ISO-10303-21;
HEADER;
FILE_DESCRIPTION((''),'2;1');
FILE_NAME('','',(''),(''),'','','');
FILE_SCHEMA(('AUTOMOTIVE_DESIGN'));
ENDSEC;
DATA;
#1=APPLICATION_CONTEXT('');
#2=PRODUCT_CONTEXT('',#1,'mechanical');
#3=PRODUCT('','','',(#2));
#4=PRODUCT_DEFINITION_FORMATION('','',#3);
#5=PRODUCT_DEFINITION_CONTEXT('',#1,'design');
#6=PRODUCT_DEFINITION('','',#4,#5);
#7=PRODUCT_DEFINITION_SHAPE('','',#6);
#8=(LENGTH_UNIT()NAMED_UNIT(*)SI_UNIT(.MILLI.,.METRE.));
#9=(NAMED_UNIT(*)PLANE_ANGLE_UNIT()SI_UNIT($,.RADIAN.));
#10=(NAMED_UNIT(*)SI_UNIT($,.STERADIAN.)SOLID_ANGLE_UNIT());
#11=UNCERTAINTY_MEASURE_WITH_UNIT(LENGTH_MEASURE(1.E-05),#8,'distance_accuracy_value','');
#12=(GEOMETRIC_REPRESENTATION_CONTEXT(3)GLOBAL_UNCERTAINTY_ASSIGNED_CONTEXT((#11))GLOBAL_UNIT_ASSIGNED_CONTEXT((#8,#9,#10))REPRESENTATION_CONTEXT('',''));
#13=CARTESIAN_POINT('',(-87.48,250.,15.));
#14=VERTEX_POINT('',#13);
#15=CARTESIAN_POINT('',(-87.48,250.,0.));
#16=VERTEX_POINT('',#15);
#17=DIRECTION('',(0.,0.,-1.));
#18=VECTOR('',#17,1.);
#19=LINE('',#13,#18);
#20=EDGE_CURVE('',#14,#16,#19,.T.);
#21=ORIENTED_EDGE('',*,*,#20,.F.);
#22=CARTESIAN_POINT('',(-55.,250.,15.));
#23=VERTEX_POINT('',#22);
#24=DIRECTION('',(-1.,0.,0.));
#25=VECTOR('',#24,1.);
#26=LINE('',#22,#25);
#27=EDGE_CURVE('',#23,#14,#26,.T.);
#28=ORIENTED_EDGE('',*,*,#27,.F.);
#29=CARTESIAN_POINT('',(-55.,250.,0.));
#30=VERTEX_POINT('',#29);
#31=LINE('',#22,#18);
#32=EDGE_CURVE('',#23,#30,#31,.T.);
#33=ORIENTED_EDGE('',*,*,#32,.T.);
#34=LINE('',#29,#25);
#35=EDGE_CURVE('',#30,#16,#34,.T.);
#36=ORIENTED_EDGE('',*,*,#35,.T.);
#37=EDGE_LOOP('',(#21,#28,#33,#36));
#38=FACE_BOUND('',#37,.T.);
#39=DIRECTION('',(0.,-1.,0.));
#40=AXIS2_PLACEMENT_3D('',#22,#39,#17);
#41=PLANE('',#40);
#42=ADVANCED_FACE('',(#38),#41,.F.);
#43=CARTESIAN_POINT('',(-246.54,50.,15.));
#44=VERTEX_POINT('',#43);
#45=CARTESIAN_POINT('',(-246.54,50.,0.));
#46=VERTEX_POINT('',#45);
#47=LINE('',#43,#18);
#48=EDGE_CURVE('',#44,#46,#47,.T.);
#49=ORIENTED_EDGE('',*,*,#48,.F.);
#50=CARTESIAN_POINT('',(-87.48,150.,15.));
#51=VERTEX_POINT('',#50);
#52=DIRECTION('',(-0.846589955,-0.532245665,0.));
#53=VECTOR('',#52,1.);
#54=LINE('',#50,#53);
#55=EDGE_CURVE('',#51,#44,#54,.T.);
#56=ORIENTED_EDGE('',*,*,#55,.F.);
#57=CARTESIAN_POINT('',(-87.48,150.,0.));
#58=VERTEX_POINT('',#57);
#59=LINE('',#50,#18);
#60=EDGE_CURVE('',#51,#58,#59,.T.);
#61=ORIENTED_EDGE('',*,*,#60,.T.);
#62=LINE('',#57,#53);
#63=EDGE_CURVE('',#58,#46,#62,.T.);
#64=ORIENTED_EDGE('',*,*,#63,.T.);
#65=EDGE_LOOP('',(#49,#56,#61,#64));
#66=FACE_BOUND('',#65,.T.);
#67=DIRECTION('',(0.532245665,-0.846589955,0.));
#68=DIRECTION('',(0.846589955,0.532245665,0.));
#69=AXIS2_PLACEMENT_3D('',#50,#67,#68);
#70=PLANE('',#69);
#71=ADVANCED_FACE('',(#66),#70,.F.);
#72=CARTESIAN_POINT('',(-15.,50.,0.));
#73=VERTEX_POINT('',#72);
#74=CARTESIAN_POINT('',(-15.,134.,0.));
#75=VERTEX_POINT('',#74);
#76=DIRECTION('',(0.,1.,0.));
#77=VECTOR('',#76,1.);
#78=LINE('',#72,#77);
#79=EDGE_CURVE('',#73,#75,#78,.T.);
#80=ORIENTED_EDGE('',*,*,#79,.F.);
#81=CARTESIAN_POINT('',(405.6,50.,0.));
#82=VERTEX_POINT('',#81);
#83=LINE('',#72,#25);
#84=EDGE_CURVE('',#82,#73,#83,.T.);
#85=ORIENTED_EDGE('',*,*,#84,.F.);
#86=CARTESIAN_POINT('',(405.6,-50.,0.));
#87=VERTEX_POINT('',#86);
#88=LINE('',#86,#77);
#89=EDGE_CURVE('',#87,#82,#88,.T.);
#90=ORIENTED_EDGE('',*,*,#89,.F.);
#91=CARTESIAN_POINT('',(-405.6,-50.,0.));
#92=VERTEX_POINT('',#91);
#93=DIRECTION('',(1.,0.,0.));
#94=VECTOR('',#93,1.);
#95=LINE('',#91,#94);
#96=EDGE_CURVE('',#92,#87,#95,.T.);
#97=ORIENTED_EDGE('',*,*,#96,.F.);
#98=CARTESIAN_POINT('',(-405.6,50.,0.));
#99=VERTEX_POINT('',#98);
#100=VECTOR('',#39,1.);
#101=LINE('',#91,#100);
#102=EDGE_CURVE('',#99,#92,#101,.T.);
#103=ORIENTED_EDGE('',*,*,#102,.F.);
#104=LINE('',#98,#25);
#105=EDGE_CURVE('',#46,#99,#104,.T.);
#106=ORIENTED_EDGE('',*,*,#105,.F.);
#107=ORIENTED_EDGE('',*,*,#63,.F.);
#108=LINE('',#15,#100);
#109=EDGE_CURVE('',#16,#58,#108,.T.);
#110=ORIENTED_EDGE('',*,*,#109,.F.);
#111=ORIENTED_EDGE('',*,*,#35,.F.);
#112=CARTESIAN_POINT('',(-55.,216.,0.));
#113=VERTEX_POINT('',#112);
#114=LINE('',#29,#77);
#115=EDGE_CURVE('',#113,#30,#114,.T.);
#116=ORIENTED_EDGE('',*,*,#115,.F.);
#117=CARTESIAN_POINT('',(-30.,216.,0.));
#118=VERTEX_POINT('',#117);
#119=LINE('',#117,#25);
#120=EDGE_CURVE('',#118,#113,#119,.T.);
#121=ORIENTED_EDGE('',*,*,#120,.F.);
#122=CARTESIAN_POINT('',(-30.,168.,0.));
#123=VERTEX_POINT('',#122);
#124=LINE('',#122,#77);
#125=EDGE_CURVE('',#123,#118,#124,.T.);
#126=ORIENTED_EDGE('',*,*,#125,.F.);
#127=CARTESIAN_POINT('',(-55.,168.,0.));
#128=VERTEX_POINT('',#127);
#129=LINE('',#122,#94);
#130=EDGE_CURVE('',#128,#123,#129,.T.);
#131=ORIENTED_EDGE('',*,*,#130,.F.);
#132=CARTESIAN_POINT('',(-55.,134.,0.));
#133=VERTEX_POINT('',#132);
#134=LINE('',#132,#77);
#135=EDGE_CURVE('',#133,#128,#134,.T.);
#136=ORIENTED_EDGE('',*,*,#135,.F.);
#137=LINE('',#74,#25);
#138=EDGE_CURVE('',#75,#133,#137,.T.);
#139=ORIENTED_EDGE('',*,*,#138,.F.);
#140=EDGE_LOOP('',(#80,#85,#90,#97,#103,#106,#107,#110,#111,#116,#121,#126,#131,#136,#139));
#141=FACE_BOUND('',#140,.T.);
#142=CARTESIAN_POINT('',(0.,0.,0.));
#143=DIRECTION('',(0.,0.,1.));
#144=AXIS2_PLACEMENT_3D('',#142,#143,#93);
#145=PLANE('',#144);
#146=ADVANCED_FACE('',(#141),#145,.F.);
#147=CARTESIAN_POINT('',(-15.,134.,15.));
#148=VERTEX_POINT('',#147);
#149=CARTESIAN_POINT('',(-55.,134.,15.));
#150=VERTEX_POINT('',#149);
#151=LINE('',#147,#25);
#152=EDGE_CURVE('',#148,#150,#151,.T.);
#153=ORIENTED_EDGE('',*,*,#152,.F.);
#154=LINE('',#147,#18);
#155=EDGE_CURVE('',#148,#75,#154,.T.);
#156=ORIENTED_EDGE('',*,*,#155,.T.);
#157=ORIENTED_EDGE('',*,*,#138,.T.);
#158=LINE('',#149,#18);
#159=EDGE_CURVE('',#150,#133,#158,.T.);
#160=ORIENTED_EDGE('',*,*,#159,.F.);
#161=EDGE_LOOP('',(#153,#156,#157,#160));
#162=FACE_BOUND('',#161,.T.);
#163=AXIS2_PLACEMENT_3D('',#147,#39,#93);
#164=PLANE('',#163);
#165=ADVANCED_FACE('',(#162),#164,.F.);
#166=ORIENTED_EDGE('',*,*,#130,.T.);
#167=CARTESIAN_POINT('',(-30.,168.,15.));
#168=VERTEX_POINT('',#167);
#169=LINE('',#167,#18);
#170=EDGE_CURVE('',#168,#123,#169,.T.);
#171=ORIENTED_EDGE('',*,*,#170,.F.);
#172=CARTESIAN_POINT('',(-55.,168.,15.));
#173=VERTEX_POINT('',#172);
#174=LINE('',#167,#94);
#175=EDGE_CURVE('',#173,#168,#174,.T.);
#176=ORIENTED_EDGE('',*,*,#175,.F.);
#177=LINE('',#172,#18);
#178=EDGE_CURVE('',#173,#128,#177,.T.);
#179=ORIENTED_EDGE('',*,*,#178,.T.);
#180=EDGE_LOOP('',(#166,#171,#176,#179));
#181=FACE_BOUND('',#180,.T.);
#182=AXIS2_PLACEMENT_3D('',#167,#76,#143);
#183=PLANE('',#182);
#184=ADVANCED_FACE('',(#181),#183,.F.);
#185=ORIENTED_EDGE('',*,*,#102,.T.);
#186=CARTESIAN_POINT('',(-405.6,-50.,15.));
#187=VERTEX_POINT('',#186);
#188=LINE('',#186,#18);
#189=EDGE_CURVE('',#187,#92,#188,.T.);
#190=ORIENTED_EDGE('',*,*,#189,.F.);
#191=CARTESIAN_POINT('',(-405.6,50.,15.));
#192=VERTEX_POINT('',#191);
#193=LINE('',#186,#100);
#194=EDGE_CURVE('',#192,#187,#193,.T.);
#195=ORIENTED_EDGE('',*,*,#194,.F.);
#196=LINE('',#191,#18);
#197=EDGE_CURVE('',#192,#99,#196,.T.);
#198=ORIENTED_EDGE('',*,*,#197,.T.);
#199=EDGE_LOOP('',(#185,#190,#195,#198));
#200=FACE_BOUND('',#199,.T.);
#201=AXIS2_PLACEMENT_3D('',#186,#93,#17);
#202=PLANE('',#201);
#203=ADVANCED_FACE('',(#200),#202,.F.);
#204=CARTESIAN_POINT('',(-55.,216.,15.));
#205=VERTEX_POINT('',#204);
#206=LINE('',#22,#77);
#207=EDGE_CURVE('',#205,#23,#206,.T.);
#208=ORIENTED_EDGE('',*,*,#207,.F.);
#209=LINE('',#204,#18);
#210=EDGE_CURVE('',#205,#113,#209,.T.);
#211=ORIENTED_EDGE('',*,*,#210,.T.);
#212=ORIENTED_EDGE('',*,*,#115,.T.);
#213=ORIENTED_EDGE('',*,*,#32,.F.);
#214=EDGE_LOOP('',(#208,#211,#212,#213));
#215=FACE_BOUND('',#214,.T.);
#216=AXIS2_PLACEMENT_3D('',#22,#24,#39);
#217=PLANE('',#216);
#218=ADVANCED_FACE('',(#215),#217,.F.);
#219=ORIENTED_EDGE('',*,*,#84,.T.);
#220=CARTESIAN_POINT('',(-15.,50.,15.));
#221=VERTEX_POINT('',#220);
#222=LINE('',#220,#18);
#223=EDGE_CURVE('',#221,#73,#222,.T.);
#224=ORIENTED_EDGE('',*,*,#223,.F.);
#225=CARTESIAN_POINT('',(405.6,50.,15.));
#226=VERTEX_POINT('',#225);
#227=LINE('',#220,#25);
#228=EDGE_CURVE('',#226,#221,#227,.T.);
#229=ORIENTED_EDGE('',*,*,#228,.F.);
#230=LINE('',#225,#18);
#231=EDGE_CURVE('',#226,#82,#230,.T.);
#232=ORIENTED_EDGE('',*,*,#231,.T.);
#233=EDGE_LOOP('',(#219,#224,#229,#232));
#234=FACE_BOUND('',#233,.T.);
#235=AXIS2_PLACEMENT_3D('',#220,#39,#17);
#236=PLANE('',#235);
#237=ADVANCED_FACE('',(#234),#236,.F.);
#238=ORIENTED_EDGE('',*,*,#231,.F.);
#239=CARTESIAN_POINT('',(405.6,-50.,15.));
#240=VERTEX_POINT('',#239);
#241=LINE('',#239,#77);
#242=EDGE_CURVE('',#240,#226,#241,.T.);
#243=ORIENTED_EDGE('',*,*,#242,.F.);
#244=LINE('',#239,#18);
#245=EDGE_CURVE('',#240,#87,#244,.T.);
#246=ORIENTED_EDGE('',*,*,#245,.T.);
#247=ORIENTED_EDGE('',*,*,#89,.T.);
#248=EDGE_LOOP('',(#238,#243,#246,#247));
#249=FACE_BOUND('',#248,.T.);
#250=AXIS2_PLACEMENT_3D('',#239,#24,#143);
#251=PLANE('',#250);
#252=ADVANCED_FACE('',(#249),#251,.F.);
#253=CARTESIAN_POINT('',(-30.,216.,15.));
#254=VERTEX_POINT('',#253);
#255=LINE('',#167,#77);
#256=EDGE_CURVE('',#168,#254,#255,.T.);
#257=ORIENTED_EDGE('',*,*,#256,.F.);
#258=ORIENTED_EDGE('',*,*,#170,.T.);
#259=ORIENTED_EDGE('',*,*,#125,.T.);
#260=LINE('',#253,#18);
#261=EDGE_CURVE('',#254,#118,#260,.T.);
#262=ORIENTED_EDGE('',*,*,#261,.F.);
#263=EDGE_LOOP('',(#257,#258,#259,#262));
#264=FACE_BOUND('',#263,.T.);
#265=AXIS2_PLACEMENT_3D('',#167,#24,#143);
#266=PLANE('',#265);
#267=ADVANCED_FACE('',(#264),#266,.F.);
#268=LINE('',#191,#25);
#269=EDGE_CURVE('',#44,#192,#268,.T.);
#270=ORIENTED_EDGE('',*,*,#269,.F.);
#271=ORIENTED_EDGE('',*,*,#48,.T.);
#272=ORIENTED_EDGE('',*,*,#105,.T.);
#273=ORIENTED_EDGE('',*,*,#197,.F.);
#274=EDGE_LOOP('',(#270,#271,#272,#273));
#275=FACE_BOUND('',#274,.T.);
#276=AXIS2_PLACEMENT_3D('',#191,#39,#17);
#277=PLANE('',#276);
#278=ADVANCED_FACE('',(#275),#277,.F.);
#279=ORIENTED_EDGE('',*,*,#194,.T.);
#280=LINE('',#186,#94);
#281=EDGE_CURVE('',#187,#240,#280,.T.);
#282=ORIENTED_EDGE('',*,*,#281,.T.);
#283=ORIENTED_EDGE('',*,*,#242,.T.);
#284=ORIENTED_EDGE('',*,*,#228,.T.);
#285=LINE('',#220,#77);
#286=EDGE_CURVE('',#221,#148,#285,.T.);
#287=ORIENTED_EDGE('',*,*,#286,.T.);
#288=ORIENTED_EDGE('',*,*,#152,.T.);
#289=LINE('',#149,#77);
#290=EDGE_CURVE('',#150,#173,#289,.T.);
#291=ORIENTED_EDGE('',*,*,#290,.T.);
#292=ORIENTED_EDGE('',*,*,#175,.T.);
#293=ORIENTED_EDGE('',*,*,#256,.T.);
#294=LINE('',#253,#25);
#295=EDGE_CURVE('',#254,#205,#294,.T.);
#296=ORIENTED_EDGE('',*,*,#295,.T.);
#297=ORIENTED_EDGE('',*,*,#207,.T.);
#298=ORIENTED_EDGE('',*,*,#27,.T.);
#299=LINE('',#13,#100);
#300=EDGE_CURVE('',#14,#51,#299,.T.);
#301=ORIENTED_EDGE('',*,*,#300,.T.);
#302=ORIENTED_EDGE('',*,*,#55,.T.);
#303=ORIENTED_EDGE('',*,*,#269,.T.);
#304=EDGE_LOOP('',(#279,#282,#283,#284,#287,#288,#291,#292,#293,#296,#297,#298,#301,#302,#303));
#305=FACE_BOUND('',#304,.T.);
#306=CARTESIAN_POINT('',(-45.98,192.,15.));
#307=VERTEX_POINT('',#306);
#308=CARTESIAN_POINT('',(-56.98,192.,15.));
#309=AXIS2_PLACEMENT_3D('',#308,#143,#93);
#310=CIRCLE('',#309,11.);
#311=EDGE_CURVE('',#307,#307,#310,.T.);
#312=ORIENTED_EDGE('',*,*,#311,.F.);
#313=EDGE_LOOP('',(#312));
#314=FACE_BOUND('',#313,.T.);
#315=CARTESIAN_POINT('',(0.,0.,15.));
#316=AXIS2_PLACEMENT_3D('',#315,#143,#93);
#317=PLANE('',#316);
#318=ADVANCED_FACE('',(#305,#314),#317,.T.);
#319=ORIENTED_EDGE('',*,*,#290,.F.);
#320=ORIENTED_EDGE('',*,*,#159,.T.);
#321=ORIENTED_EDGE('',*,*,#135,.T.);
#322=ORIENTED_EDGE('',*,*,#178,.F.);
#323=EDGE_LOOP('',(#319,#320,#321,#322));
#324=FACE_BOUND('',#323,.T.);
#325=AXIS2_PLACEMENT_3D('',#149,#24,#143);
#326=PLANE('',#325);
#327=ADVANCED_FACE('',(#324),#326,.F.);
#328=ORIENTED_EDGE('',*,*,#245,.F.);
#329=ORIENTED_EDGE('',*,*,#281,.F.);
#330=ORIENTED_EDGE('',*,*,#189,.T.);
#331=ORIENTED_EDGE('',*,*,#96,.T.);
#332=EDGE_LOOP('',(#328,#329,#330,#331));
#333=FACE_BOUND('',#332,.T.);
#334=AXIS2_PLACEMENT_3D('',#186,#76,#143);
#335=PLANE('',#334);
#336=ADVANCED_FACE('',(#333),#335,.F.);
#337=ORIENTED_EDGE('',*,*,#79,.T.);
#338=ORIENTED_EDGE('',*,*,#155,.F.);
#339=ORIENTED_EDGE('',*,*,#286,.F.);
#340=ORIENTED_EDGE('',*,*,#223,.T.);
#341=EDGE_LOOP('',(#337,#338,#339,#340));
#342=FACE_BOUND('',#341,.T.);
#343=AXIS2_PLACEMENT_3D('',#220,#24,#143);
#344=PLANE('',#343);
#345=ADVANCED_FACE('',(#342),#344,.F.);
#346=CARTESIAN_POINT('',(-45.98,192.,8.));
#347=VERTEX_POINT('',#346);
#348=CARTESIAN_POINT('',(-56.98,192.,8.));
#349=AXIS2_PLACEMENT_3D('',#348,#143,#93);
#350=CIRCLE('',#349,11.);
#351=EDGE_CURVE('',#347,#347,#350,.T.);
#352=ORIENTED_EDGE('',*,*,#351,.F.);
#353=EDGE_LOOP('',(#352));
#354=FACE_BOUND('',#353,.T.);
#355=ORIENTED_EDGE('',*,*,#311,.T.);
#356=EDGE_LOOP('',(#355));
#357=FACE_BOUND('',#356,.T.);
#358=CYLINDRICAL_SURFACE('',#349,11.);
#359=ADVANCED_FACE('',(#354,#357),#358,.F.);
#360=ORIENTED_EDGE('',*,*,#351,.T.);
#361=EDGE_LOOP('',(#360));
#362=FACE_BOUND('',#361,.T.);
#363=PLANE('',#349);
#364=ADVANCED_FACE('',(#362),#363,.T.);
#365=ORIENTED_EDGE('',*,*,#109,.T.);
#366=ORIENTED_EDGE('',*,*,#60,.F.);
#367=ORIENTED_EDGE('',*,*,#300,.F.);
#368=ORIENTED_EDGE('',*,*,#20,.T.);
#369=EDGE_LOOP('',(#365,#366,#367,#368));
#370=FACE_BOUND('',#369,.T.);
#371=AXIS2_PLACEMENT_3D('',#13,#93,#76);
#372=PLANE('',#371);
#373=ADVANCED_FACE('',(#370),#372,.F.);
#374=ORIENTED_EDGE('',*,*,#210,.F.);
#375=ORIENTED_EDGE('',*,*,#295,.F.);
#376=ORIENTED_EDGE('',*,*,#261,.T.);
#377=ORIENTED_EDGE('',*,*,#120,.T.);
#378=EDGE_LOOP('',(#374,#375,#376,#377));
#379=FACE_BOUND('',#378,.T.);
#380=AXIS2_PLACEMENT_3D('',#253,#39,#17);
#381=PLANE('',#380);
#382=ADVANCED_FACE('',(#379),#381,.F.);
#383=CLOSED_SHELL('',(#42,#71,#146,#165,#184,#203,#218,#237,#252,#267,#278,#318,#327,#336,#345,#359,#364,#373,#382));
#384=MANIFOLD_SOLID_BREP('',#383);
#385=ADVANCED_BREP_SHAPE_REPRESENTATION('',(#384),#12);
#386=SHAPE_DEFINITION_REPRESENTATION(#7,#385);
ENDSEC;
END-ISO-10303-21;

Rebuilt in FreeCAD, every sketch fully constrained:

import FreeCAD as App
import Part
import Sketcher
from FreeCAD import Vector
Q = App.Units.Quantity


def add_polygon(sketch, points):
    """Adds a closed chain of lines whose ends are joined by coincident constraints."""
    first, n = sketch.GeometryCount, len(points)
    for a, b in zip(points, points[1:] + points[:1]):
        sketch.addGeometry(Part.LineSegment(App.Vector(*a, 0), App.Vector(*b, 0)), False)
    for i in range(n):
        sketch.addConstraint(Sketcher.Constraint("Coincident", first + i, 2, first + (i + 1) % n, 1))

doc = App.newDocument("Part")
body = doc.addObject("PartDesign::Body", "Body")

# Sketch on XY plane
sketch1 = doc.addObject("Sketcher::SketchObject", "Sketch")
body.addObject(sketch1)
sketch1.AttachmentSupport = (doc.XY_Plane, [""])
sketch1.MapMode = "FlatFace"
add_polygon(sketch1, [(-15, 50), (-15, 134), (-55, 134), (-55, 168), (-30, 168), (-30, 216), (-55, 216), (-55, 250), (-87, 250), (-87, 150), (-247, 50), (-406, 50), (-406, -50), (406, -50), (406, 50)])  # lines 0-14
sketch1.addConstraint([
    Sketcher.Constraint("Vertical", 0),
    Sketcher.Constraint("Horizontal", 1),
    Sketcher.Constraint("Vertical", 2),
    Sketcher.Constraint("Horizontal", 3),
    Sketcher.Constraint("Vertical", 4),
    Sketcher.Constraint("Horizontal", 5),
    Sketcher.Constraint("Vertical", 6),
    Sketcher.Constraint("Horizontal", 7),
    Sketcher.Constraint("Vertical", 8),
    Sketcher.Constraint("Horizontal", 10),
    Sketcher.Constraint("Vertical", 11),
    Sketcher.Constraint("Horizontal", 12),
    Sketcher.Constraint("Vertical", 13),
    Sketcher.Constraint("Horizontal", 14),
    Sketcher.Constraint("Symmetric", 10, 2, 12, 2, -1, 1),
    Sketcher.Constraint("Horizontal", 10, 2, 13, 2),
    Sketcher.Constraint("Vertical", 2, 2, 5, 2),
    Sketcher.Constraint("Equal", 2, 6),
    Sketcher.Constraint("Equal", 8, 11),
    Sketcher.Constraint("DistanceX", 1, 2, 1, 1, Q("40 mm")),
    Sketcher.Constraint("DistanceX", 3, 1, 3, 2, Q("25 mm")),
    Sketcher.Constraint("DistanceY", 0, 1, 0, 2, Q("84 mm")),
    Sketcher.Constraint("DistanceY", 2, 1, 2, 2, Q("34 mm")),
    Sketcher.Constraint("DistanceY", 4, 1, 4, 2, Q("48 mm")),
    Sketcher.Constraint("DistanceY", 8, 2, 8, 1, Q("100 mm")),
    Sketcher.Constraint("DistanceX", 12, 1, 12, 2, Q("811.2 mm")),
    Sketcher.Constraint("DistanceX", 14, 2, 14, 1, Q("420.6 mm")),
    Sketcher.Constraint("DistanceX", 7, 2, 7, 1, Q("32.48 mm")),
    Sketcher.Constraint("DistanceX", 10, 2, 10, 1, Q("159.06 mm")),
])
pad1 = doc.addObject("PartDesign::Pad", "Pad")
body.addObject(pad1)
pad1.Profile = sketch1
pad1.Length = 15

# Sketch on XY plane
sketch2 = doc.addObject("Sketcher::SketchObject", "Sketch001")
body.addObject(sketch2)
sketch2.AttachmentSupport = (doc.XY_Plane, [""])
sketch2.MapMode = "FlatFace"
sketch2.AttachmentOffset = App.Placement(Vector(0, 0, 15), App.Rotation())
sketch2.addGeometry(Part.Circle(Vector(-57, 192, 0), Vector(0, 0, 1), 11), False)
sketch2.addConstraint([
    Sketcher.Constraint("Diameter", 0, Q("22 mm")),
    Sketcher.Constraint("DistanceY", -1, 1, 0, 3, Q("192 mm")),
    Sketcher.Constraint("DistanceX", 0, 3, -1, 1, Q("56.98 mm")),
])
pocket1 = doc.addObject("PartDesign::Pocket", "Pocket")
body.addObject(pocket1)
pocket1.Profile = sketch2
pocket1.Length = 7

doc.recompute()
